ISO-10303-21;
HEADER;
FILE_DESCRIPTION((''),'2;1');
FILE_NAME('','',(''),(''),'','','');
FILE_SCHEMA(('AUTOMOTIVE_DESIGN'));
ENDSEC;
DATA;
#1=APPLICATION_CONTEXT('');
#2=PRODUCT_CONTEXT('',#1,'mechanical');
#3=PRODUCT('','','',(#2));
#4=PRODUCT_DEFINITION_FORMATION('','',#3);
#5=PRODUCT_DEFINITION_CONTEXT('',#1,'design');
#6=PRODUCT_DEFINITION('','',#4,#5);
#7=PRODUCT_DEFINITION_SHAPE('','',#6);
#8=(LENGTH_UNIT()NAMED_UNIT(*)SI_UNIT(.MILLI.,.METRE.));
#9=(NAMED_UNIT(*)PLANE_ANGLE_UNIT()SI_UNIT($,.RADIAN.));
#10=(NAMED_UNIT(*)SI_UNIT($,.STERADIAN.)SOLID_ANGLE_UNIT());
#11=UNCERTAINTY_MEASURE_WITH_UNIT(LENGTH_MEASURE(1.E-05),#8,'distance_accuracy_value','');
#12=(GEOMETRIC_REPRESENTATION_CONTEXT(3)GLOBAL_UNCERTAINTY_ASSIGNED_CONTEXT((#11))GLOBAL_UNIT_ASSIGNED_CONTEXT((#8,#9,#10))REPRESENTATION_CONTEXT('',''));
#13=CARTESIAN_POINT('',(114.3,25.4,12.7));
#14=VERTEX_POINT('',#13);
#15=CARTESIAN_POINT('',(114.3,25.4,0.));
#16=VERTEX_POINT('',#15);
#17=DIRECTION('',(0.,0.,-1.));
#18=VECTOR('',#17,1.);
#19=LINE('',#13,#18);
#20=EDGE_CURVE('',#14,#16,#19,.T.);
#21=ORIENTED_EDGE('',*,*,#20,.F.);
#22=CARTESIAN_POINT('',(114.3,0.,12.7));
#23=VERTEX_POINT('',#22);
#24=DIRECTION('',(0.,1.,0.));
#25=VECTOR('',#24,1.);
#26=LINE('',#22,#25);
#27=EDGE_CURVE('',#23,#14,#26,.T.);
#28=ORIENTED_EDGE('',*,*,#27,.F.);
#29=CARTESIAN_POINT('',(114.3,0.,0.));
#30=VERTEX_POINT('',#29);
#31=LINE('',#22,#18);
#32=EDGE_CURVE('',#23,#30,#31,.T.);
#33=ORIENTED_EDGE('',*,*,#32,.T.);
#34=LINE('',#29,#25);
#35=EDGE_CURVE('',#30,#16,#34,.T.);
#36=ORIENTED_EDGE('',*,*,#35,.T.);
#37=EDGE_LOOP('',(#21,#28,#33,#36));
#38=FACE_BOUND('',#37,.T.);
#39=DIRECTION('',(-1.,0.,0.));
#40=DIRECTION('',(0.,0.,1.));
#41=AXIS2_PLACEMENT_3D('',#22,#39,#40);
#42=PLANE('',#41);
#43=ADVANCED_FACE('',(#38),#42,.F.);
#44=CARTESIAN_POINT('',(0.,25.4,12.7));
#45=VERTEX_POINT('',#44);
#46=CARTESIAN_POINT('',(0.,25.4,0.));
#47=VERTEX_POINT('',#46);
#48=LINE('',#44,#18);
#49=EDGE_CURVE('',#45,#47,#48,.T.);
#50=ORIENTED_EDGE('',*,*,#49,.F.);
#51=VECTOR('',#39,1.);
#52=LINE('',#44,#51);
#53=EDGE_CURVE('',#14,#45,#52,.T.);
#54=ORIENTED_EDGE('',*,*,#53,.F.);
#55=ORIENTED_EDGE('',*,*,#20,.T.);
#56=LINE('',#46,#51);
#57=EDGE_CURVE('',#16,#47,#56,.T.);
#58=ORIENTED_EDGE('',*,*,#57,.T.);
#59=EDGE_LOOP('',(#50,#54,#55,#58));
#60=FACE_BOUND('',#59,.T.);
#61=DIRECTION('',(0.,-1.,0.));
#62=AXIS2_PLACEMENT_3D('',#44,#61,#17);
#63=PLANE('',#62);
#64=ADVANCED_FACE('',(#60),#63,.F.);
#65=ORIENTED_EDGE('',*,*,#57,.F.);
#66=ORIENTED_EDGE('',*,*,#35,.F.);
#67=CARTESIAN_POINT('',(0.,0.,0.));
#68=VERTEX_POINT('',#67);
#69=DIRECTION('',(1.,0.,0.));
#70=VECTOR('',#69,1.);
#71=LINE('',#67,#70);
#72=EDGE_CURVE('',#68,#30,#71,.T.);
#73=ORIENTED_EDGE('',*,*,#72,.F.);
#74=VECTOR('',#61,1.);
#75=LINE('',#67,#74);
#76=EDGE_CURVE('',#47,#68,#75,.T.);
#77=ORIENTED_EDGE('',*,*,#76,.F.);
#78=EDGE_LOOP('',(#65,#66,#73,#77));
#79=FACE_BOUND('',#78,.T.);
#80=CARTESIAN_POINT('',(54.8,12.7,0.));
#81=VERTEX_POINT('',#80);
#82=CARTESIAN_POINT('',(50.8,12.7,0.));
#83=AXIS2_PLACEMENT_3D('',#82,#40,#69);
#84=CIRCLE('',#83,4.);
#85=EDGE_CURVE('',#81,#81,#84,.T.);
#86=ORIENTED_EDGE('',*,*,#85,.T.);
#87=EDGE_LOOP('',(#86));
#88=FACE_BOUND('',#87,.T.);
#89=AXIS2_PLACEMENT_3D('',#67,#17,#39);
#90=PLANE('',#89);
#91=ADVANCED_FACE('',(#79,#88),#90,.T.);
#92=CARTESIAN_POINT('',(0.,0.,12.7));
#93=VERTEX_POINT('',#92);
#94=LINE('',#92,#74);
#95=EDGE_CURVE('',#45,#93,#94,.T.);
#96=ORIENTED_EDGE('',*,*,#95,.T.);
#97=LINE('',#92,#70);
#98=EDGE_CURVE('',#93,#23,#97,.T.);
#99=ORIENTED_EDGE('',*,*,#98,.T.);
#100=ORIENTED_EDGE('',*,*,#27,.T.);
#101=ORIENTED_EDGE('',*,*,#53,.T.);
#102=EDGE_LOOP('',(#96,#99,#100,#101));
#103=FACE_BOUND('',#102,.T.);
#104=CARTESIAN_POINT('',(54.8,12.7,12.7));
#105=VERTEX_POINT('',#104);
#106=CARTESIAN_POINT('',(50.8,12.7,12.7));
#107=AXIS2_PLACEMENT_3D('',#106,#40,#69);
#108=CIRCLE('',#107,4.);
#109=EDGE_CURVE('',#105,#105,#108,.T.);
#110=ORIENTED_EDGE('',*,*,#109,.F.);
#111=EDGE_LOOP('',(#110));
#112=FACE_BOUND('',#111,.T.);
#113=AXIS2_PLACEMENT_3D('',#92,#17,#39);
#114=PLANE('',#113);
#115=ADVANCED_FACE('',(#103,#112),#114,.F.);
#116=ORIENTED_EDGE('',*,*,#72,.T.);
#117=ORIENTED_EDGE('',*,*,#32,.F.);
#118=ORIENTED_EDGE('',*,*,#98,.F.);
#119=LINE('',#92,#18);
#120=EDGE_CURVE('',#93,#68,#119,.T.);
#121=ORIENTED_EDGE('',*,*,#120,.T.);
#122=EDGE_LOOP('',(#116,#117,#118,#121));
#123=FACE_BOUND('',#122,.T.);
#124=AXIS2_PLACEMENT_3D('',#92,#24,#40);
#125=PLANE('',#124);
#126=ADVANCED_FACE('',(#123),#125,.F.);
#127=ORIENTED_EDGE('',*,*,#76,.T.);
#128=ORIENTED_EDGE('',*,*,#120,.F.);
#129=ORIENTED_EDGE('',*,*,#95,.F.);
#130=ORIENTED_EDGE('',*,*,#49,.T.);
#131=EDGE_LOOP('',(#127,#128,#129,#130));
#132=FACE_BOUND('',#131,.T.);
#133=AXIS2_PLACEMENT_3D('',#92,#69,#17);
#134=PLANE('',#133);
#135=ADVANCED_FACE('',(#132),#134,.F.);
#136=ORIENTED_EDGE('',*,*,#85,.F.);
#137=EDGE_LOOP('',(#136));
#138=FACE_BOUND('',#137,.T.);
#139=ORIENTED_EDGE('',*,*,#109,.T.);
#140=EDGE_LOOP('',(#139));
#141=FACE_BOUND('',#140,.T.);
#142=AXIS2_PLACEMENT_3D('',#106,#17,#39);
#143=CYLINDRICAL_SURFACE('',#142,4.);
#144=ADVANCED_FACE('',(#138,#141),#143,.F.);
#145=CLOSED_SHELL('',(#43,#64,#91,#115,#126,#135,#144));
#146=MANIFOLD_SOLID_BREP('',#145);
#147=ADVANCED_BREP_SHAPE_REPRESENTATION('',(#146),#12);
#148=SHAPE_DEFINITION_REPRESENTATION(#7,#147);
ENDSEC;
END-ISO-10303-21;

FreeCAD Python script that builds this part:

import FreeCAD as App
import Part
import Sketcher
from FreeCAD import Vector
Q = App.Units.Quantity


def add_polygon(sketch, points):
    """Adds a closed chain of lines whose ends are joined by coincident constraints."""
    first, n = sketch.GeometryCount, len(points)
    for a, b in zip(points, points[1:] + points[:1]):
        sketch.addGeometry(Part.LineSegment(App.Vector(*a, 0), App.Vector(*b, 0)), False)
    for i in range(n):
        sketch.addConstraint(Sketcher.Constraint("Coincident", first + i, 2, first + (i + 1) % n, 1))

doc = App.newDocument("Part")
body = doc.addObject("PartDesign::Body", "Body")

# Sketch on XY plane
sketch1 = body.newObject("Sketcher::SketchObject", "Sketch")
sketch1.AttachmentSupport = (doc.getObject("XY_Plane"), [""])
sketch1.MapMode = "FlatFace"
add_polygon(sketch1, [(0, 25.4), (0, 0), (114.3, 0), (114.3, 25.4)])  # lines 0-3
sketch1.addGeometry(Part.Circle(Vector(50.8, 12.7, 0), Vector(0, 0, 1), 4), False)  # 4
sketch1.addConstraint([
    Sketcher.Constraint("Vertical", 0),
    Sketcher.Constraint("Horizontal", 1),
    Sketcher.Constraint("Vertical", 2),
    Sketcher.Constraint("Horizontal", 3),
    Sketcher.Constraint("Coincident", 0, 2, -1, 1),
    Sketcher.Constraint("DistanceY", 0, 2, 0, 1, Q("1 in")),
    Sketcher.Constraint("DistanceX", 1, 1, 1, 2, Q("4.5 in")),
    Sketcher.Constraint("DistanceX", -1, 1, 4, 3, Q("2 in")),
    Sketcher.Constraint("DistanceY", -1, 1, 4, 3, Q("0.5 in")),
    Sketcher.Constraint("Diameter", 4, Q("8 mm")),
])
pad1 = body.newObject("PartDesign::Pad", "Pad")
pad1.Profile = sketch1
pad1.Length = Q("0.5 in")

doc.recompute()
